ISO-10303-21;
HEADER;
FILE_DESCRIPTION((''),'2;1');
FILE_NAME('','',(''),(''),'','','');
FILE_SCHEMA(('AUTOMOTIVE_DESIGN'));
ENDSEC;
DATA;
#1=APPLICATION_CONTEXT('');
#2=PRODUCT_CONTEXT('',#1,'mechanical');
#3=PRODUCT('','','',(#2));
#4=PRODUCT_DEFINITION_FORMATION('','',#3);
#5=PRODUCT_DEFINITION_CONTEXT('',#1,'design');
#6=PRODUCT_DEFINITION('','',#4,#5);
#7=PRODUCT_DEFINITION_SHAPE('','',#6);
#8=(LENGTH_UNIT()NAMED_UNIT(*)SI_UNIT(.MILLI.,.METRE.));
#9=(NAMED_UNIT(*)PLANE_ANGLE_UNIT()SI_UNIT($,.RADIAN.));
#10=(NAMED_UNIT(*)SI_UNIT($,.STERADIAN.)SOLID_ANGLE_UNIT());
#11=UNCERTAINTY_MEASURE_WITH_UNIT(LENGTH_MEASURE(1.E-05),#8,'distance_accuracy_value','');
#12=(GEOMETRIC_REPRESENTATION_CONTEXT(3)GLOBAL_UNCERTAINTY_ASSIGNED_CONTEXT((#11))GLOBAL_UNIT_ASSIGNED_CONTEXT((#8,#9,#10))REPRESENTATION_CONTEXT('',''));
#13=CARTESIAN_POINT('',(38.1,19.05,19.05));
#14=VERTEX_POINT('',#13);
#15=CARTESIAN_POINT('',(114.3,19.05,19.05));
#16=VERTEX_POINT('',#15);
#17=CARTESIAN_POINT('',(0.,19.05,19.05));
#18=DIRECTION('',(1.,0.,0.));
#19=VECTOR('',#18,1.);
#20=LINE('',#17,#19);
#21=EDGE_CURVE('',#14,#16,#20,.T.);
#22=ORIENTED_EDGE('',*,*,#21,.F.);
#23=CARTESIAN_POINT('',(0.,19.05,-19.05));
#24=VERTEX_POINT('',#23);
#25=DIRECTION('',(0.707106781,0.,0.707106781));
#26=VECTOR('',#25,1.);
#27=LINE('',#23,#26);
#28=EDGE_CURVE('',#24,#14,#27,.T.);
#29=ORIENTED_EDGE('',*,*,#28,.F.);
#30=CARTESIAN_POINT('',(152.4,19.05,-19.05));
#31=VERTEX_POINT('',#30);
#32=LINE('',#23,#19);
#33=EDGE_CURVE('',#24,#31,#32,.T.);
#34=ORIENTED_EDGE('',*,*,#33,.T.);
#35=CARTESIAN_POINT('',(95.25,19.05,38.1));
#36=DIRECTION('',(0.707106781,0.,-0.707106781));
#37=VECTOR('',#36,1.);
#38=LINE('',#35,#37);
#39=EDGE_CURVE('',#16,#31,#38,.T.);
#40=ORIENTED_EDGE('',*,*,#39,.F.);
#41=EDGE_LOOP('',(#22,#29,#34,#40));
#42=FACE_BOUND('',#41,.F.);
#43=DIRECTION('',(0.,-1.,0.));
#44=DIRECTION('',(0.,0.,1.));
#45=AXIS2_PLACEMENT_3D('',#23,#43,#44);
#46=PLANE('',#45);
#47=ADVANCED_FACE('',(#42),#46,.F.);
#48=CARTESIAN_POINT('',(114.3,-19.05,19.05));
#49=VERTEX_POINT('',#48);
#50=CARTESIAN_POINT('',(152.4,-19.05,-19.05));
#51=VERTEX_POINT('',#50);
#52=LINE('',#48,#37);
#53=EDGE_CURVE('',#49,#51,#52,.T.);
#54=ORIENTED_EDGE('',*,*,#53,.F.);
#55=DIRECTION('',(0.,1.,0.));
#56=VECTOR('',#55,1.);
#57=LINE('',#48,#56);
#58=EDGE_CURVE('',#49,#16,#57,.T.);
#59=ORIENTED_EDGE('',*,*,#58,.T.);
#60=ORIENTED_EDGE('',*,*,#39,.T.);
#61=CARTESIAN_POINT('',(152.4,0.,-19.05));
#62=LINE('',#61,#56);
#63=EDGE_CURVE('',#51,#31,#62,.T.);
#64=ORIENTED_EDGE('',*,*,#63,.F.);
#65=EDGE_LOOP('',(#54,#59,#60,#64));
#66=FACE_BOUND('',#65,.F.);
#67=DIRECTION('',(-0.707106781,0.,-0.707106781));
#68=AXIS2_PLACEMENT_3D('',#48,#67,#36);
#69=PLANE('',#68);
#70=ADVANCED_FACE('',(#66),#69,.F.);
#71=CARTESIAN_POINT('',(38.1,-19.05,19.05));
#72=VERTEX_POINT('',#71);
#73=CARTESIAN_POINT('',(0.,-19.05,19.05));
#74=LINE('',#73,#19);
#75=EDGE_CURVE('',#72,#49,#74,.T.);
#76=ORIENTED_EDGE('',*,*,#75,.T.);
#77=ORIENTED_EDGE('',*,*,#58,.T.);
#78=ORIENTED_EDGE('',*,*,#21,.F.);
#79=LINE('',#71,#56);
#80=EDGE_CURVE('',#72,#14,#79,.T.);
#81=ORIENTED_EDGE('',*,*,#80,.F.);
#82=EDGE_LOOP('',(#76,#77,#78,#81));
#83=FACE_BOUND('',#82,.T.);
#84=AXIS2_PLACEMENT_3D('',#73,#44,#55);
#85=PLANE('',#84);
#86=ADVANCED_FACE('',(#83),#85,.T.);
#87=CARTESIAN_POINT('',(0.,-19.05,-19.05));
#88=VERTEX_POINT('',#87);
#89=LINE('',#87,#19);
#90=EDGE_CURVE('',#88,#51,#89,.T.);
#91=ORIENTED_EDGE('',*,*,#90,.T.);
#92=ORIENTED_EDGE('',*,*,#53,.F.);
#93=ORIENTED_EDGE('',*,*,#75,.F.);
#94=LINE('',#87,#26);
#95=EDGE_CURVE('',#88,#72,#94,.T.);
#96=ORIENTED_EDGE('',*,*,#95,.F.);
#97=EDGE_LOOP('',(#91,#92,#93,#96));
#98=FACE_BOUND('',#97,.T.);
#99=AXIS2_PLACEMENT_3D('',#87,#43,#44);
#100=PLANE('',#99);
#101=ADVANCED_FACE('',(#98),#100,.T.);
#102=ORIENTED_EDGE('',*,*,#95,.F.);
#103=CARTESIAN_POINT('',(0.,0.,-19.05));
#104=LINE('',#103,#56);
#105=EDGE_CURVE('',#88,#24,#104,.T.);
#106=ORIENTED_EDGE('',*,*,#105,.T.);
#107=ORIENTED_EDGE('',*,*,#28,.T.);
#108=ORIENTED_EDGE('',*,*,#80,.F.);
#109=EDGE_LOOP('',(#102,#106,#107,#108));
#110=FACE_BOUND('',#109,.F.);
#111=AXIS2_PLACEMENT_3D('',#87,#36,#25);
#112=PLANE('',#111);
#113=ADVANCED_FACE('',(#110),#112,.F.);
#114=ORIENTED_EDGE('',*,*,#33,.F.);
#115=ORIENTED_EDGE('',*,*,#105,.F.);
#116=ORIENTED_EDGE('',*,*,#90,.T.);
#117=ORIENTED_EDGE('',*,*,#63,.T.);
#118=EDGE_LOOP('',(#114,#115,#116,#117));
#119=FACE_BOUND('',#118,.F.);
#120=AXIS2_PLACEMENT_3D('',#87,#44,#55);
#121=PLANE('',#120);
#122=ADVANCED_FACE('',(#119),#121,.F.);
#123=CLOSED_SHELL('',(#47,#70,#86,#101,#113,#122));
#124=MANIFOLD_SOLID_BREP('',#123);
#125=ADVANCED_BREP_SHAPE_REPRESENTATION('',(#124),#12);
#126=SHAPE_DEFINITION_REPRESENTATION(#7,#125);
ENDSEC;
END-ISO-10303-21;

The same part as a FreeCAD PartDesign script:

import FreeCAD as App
import Part
import Sketcher
Q = App.Units.Quantity

doc = App.newDocument("Part")
body = doc.addObject("PartDesign::Body", "Body")

sketch1 = body.newObject("Sketcher::SketchObject", "Sketch")
sketch1.AttachmentSupport = (doc.getObject("YZ_Plane"), [""])
sketch1.MapMode = "FlatFace"
sketch1.addGeometry([
    Part.LineSegment(App.Vector(-19, 19, 0), App.Vector(-19, -19, 0)),
    Part.LineSegment(App.Vector(-19, -19, 0), App.Vector(19, -19, 0)),
    Part.LineSegment(App.Vector(19, -19, 0), App.Vector(19, 19, 0)),
    Part.LineSegment(App.Vector(19, 19, 0), App.Vector(-19, 19, 0)),
], False)
sketch1.addConstraint([
    Sketcher.Constraint("Coincident", 0, 2, 1, 1),
    Sketcher.Constraint("Coincident", 1, 2, 2, 1),
    Sketcher.Constraint("Coincident", 2, 2, 3, 1),
    Sketcher.Constraint("Coincident", 3, 2, 0, 1),
    Sketcher.Constraint("Vertical", 0),
    Sketcher.Constraint("Horizontal", 1),
    Sketcher.Constraint("Vertical", 2),
    Sketcher.Constraint("Horizontal", 3),
    Sketcher.Constraint("Symmetric", 0, 2, 2, 2, -1, 1),
    Sketcher.Constraint("Equal", 3, 0),
    Sketcher.Constraint("DistanceX", 1, 1, 1, 2, Q("1.5 in")),
])
pad1 = body.newObject("PartDesign::Pad", "Pad")
pad1.Profile = sketch1
pad1.Length = Q("6 in")

sketch2 = body.newObject("Sketcher::SketchObject", "Sketch001")
sketch2.AttachmentSupport = (doc.getObject("XZ_Plane"), [""])
sketch2.MapMode = "FlatFace"
sketch2.AttachmentOffset = App.Placement(App.Vector(0, 0, 0.75 * 25.4), App.Rotation())
sketch2.addGeometry([
    Part.LineSegment(App.Vector(0, 19, 0), App.Vector(0, -19, 0)),
    Part.LineSegment(App.Vector(0, -19, 0), App.Vector(38, 19, 0)),
    Part.LineSegment(App.Vector(38, 19, 0), App.Vector(0, 19, 0)),
    Part.LineSegment(App.Vector(114, 19, 0), App.Vector(152, -19, 0)),
    Part.LineSegment(App.Vector(152, -19, 0), App.Vector(152, 19, 0)),
    Part.LineSegment(App.Vector(152, 19, 0), App.Vector(114, 19, 0)),
], False)
sketch2.addConstraint([
    Sketcher.Constraint("Coincident", 0, 2, 1, 1),
    Sketcher.Constraint("Coincident", 1, 2, 2, 1),
    Sketcher.Constraint("Coincident", 2, 2, 0, 1),
    Sketcher.Constraint("Coincident", 3, 2, 4, 1),
    Sketcher.Constraint("Coincident", 4, 2, 5, 1),
    Sketcher.Constraint("Coincident", 5, 2, 3, 1),
    Sketcher.Constraint("Vertical", 0),
    Sketcher.Constraint("Horizontal", 2),
    Sketcher.Constraint("Vertical", 4),
    Sketcher.Constraint("Horizontal", 5),
    Sketcher.Constraint("Symmetric", 0, 2, 2, 2, -1, 1),
    Sketcher.Constraint("Perpendicular", 1, 3),
    Sketcher.Constraint("Horizontal", 0, 2, 3, 2),
    Sketcher.Constraint("Horizontal", 2, 2, 4, 2),
    Sketcher.Constraint("Equal", 2, 5),
    Sketcher.Constraint("DistanceX", 2, 2, 2, 1, Q("1.5 in")),
    Sketcher.Constraint("DistanceX", -1, 1, 3, 2, Q("6 in")),
])
pocket1 = body.newObject("PartDesign::Pocket", "Pocket")
pocket1.Profile = sketch2
pocket1.Type = "ThroughAll"

doc.recompute()
